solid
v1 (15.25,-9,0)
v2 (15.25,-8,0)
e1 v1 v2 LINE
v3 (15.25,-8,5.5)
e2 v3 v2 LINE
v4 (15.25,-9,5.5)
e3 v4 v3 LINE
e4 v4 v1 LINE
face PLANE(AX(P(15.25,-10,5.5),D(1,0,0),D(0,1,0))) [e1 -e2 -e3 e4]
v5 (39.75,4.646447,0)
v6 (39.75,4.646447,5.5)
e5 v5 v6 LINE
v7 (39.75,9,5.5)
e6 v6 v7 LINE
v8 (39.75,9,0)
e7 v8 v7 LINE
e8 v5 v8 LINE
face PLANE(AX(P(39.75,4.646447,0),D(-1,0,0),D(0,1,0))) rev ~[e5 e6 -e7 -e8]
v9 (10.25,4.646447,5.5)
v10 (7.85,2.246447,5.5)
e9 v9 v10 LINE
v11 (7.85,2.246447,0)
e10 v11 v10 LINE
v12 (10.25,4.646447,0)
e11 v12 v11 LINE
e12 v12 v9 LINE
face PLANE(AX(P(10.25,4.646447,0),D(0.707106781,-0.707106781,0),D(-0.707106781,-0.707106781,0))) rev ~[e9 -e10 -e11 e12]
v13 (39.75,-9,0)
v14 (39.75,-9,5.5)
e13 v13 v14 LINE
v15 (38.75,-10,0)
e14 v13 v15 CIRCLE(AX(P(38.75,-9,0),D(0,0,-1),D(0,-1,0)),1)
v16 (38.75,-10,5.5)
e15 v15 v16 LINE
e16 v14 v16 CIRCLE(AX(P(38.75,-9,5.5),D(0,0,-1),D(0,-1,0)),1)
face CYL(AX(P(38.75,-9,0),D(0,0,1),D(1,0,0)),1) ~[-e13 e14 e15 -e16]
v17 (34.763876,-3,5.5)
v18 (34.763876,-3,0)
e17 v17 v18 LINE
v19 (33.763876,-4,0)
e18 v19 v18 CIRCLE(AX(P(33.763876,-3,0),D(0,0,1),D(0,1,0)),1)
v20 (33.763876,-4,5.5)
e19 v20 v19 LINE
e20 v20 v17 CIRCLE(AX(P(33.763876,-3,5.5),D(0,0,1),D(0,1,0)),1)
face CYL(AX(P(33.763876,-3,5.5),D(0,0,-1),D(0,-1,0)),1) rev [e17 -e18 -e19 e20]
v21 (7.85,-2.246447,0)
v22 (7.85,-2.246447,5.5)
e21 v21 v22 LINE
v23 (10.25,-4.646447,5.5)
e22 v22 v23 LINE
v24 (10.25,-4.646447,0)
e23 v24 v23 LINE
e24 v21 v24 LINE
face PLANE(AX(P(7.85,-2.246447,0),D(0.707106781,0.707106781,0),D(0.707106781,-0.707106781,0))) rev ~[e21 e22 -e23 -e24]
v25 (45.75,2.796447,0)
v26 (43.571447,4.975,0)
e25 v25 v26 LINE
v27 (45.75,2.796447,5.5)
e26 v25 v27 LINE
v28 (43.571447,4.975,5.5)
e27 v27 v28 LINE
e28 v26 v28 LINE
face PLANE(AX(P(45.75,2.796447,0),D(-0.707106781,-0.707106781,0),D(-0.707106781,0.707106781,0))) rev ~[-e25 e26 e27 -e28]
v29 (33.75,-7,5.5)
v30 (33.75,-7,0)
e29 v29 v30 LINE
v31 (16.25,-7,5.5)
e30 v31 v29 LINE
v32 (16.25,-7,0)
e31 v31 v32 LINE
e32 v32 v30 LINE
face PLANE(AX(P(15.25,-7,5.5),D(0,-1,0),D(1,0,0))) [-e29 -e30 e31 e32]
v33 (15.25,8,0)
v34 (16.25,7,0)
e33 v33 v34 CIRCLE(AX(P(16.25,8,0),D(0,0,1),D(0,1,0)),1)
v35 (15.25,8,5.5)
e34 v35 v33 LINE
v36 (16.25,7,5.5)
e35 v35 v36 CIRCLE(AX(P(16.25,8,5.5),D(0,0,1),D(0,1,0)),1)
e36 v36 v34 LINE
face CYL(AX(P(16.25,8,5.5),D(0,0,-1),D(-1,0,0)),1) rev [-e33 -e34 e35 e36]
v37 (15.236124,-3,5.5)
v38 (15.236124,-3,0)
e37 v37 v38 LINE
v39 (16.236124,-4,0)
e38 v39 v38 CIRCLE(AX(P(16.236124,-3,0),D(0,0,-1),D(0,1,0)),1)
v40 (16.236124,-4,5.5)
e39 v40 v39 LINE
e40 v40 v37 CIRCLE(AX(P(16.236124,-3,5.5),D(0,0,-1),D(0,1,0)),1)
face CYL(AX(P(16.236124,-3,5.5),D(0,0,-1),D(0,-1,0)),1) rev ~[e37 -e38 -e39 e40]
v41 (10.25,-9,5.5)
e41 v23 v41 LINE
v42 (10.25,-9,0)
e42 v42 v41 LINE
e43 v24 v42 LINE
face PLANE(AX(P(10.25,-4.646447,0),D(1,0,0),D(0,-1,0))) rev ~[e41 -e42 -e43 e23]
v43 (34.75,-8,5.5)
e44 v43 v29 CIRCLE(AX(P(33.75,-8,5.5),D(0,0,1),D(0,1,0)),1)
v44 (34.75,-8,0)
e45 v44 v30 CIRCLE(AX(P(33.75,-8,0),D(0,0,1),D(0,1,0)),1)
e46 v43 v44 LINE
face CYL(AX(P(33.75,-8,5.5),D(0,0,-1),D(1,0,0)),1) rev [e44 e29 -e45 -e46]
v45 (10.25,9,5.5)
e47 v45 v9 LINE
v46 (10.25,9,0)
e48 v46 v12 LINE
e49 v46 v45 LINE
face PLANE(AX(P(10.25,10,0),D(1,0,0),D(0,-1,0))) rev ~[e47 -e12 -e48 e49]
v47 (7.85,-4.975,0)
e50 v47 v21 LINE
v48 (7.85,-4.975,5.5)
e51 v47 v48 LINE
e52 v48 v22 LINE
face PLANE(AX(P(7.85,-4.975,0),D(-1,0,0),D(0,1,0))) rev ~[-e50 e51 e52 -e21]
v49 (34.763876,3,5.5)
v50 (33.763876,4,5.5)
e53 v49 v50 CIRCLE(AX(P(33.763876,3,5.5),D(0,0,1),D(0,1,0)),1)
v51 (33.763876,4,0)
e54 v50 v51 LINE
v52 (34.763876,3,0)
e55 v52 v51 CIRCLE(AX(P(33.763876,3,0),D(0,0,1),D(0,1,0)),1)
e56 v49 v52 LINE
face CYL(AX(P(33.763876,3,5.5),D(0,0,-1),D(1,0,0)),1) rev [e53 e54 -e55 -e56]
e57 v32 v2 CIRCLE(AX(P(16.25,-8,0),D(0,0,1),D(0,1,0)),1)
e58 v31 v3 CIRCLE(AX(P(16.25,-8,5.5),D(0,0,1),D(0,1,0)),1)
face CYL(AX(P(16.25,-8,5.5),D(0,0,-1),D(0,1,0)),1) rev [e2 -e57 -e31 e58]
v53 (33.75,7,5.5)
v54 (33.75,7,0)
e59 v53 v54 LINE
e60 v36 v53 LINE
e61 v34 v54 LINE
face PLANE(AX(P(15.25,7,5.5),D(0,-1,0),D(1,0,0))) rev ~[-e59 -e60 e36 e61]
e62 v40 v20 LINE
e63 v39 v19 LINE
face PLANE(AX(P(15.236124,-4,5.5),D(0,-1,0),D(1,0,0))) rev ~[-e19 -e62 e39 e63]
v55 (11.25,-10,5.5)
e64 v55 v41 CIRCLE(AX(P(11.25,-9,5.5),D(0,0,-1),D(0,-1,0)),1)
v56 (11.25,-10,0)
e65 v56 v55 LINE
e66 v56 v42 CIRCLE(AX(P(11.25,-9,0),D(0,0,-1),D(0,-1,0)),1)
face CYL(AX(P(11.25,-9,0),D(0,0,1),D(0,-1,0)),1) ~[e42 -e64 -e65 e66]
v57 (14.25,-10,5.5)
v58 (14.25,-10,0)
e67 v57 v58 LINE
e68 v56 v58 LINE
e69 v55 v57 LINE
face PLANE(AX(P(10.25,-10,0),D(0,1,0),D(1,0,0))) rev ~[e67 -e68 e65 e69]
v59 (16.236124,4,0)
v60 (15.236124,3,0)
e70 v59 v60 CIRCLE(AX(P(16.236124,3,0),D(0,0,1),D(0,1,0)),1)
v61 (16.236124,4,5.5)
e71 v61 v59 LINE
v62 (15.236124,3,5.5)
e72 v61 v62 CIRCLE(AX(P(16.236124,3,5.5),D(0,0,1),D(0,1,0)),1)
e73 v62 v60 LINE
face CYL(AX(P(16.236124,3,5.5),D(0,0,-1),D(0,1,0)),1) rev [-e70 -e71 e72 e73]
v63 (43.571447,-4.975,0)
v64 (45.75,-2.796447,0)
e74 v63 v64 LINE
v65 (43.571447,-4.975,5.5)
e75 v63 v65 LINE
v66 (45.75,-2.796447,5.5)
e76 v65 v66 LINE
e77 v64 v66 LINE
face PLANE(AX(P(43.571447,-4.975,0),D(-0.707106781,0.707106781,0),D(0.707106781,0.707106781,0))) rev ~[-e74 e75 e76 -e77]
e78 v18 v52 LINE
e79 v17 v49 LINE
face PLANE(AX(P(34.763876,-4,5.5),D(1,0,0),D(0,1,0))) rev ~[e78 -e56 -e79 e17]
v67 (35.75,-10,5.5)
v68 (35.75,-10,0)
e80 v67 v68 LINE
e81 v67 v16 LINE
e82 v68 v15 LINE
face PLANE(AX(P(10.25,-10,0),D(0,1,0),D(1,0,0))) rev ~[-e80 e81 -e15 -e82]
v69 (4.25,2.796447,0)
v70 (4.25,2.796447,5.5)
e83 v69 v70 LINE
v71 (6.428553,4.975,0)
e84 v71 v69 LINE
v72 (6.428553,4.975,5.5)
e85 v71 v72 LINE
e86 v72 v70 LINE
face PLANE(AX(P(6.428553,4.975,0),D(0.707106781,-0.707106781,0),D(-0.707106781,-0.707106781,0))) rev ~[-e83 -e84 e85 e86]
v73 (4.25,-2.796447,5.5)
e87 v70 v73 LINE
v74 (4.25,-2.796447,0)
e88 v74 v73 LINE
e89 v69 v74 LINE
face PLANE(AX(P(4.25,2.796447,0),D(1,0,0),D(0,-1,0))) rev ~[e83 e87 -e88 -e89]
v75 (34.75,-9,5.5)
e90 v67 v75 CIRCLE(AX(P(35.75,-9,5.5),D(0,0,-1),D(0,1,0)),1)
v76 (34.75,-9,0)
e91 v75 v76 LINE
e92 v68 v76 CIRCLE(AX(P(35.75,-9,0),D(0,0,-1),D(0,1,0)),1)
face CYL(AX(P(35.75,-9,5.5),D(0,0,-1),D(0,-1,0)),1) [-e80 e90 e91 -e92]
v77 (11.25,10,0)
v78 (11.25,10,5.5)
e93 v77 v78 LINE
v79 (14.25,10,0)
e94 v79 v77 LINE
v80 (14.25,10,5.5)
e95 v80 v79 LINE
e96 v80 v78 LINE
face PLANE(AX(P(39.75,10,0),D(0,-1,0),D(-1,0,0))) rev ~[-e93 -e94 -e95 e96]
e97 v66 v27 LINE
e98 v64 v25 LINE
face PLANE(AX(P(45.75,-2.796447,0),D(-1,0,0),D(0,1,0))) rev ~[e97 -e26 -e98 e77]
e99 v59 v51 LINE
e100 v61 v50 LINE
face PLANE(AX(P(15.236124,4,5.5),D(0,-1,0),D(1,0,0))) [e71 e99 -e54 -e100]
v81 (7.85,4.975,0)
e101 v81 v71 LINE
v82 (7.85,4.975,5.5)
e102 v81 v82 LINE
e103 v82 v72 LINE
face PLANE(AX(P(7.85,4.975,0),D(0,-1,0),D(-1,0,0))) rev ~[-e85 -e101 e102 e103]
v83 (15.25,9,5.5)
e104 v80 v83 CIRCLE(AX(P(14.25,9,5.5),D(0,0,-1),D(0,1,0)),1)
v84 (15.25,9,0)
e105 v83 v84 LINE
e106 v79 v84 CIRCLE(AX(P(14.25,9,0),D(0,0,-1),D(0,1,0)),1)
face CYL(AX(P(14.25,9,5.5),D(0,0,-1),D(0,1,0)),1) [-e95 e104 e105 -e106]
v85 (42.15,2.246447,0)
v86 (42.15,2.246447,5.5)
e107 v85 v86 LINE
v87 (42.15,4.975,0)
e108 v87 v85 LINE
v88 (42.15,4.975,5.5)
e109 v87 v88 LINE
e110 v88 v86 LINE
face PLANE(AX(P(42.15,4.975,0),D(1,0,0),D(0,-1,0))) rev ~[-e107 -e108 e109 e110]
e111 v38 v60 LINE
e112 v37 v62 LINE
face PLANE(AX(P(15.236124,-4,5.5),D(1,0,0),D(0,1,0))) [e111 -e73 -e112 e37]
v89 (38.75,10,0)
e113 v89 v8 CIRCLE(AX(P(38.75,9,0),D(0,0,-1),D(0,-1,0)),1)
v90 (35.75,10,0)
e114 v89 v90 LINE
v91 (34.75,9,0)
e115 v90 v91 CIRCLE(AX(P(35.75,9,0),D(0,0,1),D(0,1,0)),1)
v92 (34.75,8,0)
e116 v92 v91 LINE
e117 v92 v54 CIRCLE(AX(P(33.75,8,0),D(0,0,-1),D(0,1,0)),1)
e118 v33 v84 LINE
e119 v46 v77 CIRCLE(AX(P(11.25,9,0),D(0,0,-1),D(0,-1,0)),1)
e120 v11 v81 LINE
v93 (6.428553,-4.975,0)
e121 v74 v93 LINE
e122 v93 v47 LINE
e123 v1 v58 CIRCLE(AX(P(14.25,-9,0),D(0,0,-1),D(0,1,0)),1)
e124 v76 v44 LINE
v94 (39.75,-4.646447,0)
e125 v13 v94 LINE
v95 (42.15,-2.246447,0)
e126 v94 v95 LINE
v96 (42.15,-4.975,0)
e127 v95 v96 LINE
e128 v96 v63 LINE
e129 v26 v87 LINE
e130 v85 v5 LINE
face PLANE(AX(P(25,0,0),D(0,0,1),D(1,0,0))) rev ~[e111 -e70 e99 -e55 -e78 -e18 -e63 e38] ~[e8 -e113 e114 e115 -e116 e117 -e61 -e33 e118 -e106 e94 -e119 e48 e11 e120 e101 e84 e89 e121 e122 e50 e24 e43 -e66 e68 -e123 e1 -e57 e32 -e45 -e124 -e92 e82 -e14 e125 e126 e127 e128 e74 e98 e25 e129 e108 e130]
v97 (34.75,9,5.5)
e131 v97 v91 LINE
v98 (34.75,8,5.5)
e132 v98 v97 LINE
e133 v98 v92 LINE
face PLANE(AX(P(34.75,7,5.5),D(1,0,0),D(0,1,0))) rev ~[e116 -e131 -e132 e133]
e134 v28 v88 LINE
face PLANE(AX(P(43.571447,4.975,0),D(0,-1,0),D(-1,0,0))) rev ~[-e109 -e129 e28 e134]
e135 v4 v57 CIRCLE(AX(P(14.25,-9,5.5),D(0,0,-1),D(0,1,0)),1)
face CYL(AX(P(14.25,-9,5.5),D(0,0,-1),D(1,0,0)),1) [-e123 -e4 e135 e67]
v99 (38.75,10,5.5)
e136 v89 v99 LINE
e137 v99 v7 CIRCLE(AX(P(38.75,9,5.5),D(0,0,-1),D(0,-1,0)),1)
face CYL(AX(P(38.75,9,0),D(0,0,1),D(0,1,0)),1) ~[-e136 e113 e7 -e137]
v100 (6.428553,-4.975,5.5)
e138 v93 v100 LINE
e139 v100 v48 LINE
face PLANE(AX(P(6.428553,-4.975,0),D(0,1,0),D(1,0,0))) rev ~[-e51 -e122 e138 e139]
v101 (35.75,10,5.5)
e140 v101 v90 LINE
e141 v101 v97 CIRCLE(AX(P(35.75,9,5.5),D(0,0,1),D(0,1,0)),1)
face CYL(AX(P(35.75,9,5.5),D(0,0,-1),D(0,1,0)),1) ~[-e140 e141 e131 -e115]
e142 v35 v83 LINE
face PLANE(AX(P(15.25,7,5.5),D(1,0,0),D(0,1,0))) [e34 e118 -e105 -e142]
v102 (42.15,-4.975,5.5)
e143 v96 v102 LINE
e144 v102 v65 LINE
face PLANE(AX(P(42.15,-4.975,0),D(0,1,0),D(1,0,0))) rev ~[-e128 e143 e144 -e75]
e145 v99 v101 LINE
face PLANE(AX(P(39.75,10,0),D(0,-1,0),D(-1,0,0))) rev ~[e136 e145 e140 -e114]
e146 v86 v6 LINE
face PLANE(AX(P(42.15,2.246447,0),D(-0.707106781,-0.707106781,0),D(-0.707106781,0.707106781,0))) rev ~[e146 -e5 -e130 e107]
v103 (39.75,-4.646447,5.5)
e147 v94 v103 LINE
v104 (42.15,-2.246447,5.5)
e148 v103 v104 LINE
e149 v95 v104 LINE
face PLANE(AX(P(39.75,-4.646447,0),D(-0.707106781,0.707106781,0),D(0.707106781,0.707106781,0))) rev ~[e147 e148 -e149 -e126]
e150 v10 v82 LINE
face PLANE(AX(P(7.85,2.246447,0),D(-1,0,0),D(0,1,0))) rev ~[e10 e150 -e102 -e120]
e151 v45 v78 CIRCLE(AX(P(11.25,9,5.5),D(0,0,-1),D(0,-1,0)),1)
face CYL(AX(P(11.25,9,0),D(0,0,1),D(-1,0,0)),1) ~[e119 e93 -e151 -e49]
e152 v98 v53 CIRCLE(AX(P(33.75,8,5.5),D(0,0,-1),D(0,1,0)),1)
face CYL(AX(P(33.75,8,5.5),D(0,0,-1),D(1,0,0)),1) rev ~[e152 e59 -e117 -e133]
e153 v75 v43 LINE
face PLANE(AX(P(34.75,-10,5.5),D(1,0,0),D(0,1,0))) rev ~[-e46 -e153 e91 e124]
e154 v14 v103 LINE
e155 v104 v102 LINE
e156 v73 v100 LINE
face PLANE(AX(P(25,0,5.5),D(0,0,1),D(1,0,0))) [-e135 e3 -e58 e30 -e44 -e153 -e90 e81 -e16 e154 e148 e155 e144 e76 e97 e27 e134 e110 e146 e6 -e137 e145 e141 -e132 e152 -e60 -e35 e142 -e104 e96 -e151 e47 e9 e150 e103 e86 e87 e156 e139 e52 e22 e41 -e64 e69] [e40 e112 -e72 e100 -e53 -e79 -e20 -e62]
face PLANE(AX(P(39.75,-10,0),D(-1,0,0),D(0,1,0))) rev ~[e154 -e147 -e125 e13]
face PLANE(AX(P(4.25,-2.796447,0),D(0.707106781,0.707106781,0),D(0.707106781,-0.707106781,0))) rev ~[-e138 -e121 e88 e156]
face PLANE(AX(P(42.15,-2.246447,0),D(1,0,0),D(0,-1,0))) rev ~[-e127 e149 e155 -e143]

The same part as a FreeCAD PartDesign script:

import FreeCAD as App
import Part
import Sketcher

V = App.Vector
Q = App.Units.Quantity


def edges_at(feature, points):
    """Names of the edges that pass closest to the given points."""
    edges = feature.Shape.Edges
    near = lambda p: min(range(len(edges)), key=lambda i: edges[i].distToShape(Part.Vertex(*p))[0])
    return sorted({f"Edge{near(p) + 1}" for p in points})


def add_polygon(sketch, points):
    """Adds a closed chain of lines whose ends are joined by coincident constraints."""
    first, n = sketch.GeometryCount, len(points)
    for a, b in zip(points, points[1:] + points[:1]):
        sketch.addGeometry(Part.LineSegment(App.Vector(*a, 0), App.Vector(*b, 0)), False)
    for i in range(n):
        sketch.addConstraint(Sketcher.Constraint("Coincident", first + i, 2, first + (i + 1) % n, 1))

doc = App.newDocument("Part")
body = doc.addObject("PartDesign::Body", "Body")

# Sketch on XY plane
sketch1 = body.newObject("Sketcher::SketchObject", "Sketch")
sketch1.AttachmentSupport = (doc.getObject("XY_Plane"), [""])
sketch1.MapMode = "FlatFace"
add_polygon(sketch1, [(39.8, 10), (10.2, 10), (10.2, 4.6), (7.8, 2.2), (7.8, 5), (6.4, 5), (4.2, 2.8), (4.2, -2.8), (6.4, -5), (7.8, -5), (7.8, -2.2), (10.2, -4.6), (10.2, -10), (39.8, -10), (39.8, -4.6), (42.1, -2.2), (42.1, -5), (43.6, -5), (45.8, -2.8), (45.8, 2.8), (43.6, 5), (42.1, 5), (42.1, 2.2), (39.8, 4.6)])  # lines 0-23
sketch1.addConstraint([
    Sketcher.Constraint("Horizontal", 0),
    Sketcher.Constraint("Vertical", 1),
    Sketcher.Constraint("Vertical", 3),
    Sketcher.Constraint("Horizontal", 4),
    Sketcher.Constraint("Vertical", 6),
    Sketcher.Constraint("Horizontal", 8),
    Sketcher.Constraint("Vertical", 9),
    Sketcher.Constraint("Vertical", 11),
    Sketcher.Constraint("Horizontal", 12),
    Sketcher.Constraint("Vertical", 13),
    Sketcher.Constraint("Vertical", 15),
    Sketcher.Constraint("Horizontal", 16),
    Sketcher.Constraint("Vertical", 18),
    Sketcher.Constraint("Horizontal", 20),
    Sketcher.Constraint("Vertical", 21),
    Sketcher.Constraint("Vertical", 23),
    Sketcher.Constraint("Symmetric", 4, 2, 7, 2, -1),
    Sketcher.Constraint("Symmetric", 2, 2, 9, 2, -1),
    Sketcher.Constraint("Symmetric", 1, 2, 10, 2, -1),
    Sketcher.Constraint("Symmetric", 16, 2, 19, 2, -1),
    Sketcher.Constraint("Symmetric", 14, 2, 21, 2, -1),
    Sketcher.Constraint("Symmetric", 13, 2, 22, 2, -1),
    Sketcher.Constraint("Parallel", 2, 5),
    Sketcher.Constraint("Perpendicular", 5, 7),
    Sketcher.Constraint("Parallel", 7, 10),
    Sketcher.Constraint("Perpendicular", 10, 14),
    Sketcher.Constraint("Parallel", 14, 17),
    Sketcher.Constraint("Perpendicular", 17, 19),
    Sketcher.Constraint("Horizontal", 10, 2, 13, 2),
    Sketcher.Constraint("Horizontal", 9, 2, 14, 2),
    Sketcher.Constraint("Horizontal", 8, 2, 15, 2),
    Sketcher.Constraint("Horizontal", 6, 2, 17, 2),
    Sketcher.Constraint("Equal", 8, 16),
    Sketcher.Constraint("Equal", 1, 11),
    Sketcher.Constraint("DistanceX", 0, 2, 0, 1, Q("29.5 mm")),
    Sketcher.Constraint("DistanceY", -1, 1, 0, 2, Q("10 mm")),
    Sketcher.Constraint("DistanceX", 5, 2, 1, 2, Q("6 mm")),
    Sketcher.Constraint("DistanceX", 2, 2, 1, 2, Q("2.4 mm")),
    Sketcher.Constraint("DistanceX", -1, 1, 0, 2, Q("10.25 mm")),
    Sketcher.Constraint("DistanceY", 2, 2, 5, 2, Q("0.55 mm")),
    Sketcher.Constraint("DistanceY", 7, 2, 4, 2, Q("9.95 mm")),
    Sketcher.Constraint("Distance", 5, Q("3.08094 mm")),
])
pad1 = body.newObject("PartDesign::Pad", "Pad")
pad1.Profile = sketch1
pad1.Length = 5.5

# Sketch on XY plane
sketch2 = body.newObject("Sketcher::SketchObject", "Sketch001")
sketch2.AttachmentSupport = (doc.getObject("XY_Plane"), [""])
sketch2.MapMode = "FlatFace"
sketch2.AttachmentOffset = App.Placement(V(0, 0, 5.5), App.Rotation())
add_polygon(sketch2, [(15.2, 10), (15.2, 7), (34.8, 7), (34.8, 10)])  # lines 0-3
add_polygon(sketch2, [(15.2, -7), (15.2, -10), (34.8, -10), (34.8, -7)])  # lines 4-7
add_polygon(sketch2, [(15.2, 4), (15.2, -4), (34.8, -4), (34.8, 4)])  # lines 8-11
sketch2.addConstraint([
    Sketcher.Constraint("Vertical", 0),
    Sketcher.Constraint("Horizontal", 1),
    Sketcher.Constraint("Vertical", 2),
    Sketcher.Constraint("Horizontal", 3),
    Sketcher.Constraint("Vertical", 4),
    Sketcher.Constraint("Horizontal", 5),
    Sketcher.Constraint("Vertical", 6),
    Sketcher.Constraint("Horizontal", 7),
    Sketcher.Constraint("Vertical", 8),
    Sketcher.Constraint("Horizontal", 9),
    Sketcher.Constraint("Vertical", 10),
    Sketcher.Constraint("Horizontal", 11),
    Sketcher.Constraint("Symmetric", 3, 2, 4, 2, -1),
    Sketcher.Constraint("Symmetric", 1, 2, 6, 2, -1),
    Sketcher.Constraint("DistanceY", 0, 2, 0, 1, Q("3 mm")),
    Sketcher.Constraint("DistanceY", 8, 2, 8, 1, Q("8 mm")),
    Sketcher.Constraint("DistanceX", 1, 1, 1, 2, Q("19.5 mm")),
    Sketcher.Constraint("DistanceY", -1, 1, 0, 2, Q("7 mm")),
    Sketcher.Constraint("DistanceY", 8, 2, -1, 1, Q("4 mm")),
    Sketcher.Constraint("DistanceX", -1, 1, 0, 2, Q("15.25 mm")),
    Sketcher.Constraint("DistanceX", 9, 1, 9, 2, Q("19.527753 mm")),
    Sketcher.Constraint("DistanceX", -1, 1, 8, 2, Q("15.236124 mm")),
])
pocket1 = body.newObject("PartDesign::Pocket", "Pocket")
pocket1.Profile = sketch2
pocket1.Type = "ThroughAll"
doc.recompute()

fillet = body.newObject("PartDesign::Fillet", "Fillet")
fillet.Base = (pocket1, edges_at(pocket1, [
    (15.25, -10, 2.75),
    (15.25, -7, 2.75),
    (34.75, -7, 2.75),
    (34.75, -10, 2.75),
    (15.236, -4, 2.75),
    (15.236, 4, 2.75),
    (34.764, 4, 2.75),
    (34.764, -4, 2.75),
    (10.25, 10, 2.75),
    (39.75, 10, 2.75),
    (39.75, -10, 2.75),
    (10.25, -10, 2.75),
    (15.25, 7, 2.75),
    (15.25, 10, 2.75),
    (34.75, 10, 2.75),
    (34.75, 7, 2.75),
]))
fillet.Radius = 1

doc.recompute()
